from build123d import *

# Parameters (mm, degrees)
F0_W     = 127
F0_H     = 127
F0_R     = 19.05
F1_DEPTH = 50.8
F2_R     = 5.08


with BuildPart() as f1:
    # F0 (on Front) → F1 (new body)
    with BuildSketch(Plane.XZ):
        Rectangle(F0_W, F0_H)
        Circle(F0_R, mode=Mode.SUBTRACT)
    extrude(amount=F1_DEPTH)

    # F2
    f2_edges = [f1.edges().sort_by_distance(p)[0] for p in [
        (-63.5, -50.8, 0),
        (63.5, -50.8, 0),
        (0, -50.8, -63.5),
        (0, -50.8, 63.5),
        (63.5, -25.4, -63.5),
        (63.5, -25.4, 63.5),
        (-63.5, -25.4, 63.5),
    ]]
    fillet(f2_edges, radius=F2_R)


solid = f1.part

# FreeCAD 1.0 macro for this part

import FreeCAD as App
import Part
import Sketcher
Q = App.Units.Quantity


def edges_at(feature, points):
    """Names of the edges that pass closest to the given points."""
    edges = feature.Shape.Edges
    near = lambda p: min(range(len(edges)), key=lambda i: edges[i].distToShape(Part.Vertex(*p))[0])
    return sorted({f"Edge{near(p) + 1}" for p in points})

doc = App.newDocument("Part")
body = doc.addObject("PartDesign::Body", "Body")

# Sketch on XZ plane
sketch1 = body.newObject("Sketcher::SketchObject", "Sketch")
sketch1.AttachmentSupport = (doc.getObject("XZ_Plane"), [""])
sketch1.MapMode = "FlatFace"
sketch1.addGeometry(Part.LineSegment(App.Vector(-63.5, 63.5, 0), App.Vector(-63.5, -63.5, 0)), False)
sketch1.addGeometry(Part.LineSegment(App.Vector(-63.5, -63.5, 0), App.Vector(63.5, -63.5, 0)), False)
sketch1.addGeometry(Part.LineSegment(App.Vector(63.5, -63.5, 0), App.Vector(63.5, 63.5, 0)), False)
sketch1.addGeometry(Part.LineSegment(App.Vector(63.5, 63.5, 0), App.Vector(-63.5, 63.5, 0)), False)
sketch1.addGeometry(Part.Circle(App.Vector(0, 0, 0), App.Vector(0, 0, 1), 19.05), False)
sketch1.addConstraint(Sketcher.Constraint("Coincident", 0, 2, 1, 1))
sketch1.addConstraint(Sketcher.Constraint("Coincident", 1, 2, 2, 1))
sketch1.addConstraint(Sketcher.Constraint("Coincident", 2, 2, 3, 1))
sketch1.addConstraint(Sketcher.Constraint("Coincident", 3, 2, 0, 1))
sketch1.addConstraint(Sketcher.Constraint("Vertical", 0))
sketch1.addConstraint(Sketcher.Constraint("Horizontal", 1))
sketch1.addConstraint(Sketcher.Constraint("Vertical", 2))
sketch1.addConstraint(Sketcher.Constraint("Horizontal", 3))
sketch1.addConstraint(Sketcher.Constraint("Coincident", 4, 3, -1, 1))
sketch1.addConstraint(Sketcher.Constraint("Symmetric", 0, 2, 2, 2, -1, 1))
sketch1.addConstraint(Sketcher.Constraint("Equal", 3, 0))
sketch1.addConstraint(Sketcher.Constraint("Diameter", 4, Q("1.5 in")))
sketch1.addConstraint(Sketcher.Constraint("DistanceX", 1, 1, 1, 2, Q("5 in")))
pad1 = body.newObject("PartDesign::Pad", "Pad")
pad1.Profile = sketch1
pad1.Length = Q("2 in")
doc.recompute()

fillet = body.newObject("PartDesign::Fillet", "Fillet")
fillet.Base = (pad1, edges_at(pad1, [
    (-63.5, -50.8, 0),
    (63.5, -50.8, 0),
    (0, -50.8, -63.5),
    (0, -50.8, 63.5),
    (63.5, -25.4, -63.5),
    (63.5, -25.4, 63.5),
    (-63.5, -25.4, 63.5),
]))
fillet.Radius = Q("0.2 in")

doc.recompute()
